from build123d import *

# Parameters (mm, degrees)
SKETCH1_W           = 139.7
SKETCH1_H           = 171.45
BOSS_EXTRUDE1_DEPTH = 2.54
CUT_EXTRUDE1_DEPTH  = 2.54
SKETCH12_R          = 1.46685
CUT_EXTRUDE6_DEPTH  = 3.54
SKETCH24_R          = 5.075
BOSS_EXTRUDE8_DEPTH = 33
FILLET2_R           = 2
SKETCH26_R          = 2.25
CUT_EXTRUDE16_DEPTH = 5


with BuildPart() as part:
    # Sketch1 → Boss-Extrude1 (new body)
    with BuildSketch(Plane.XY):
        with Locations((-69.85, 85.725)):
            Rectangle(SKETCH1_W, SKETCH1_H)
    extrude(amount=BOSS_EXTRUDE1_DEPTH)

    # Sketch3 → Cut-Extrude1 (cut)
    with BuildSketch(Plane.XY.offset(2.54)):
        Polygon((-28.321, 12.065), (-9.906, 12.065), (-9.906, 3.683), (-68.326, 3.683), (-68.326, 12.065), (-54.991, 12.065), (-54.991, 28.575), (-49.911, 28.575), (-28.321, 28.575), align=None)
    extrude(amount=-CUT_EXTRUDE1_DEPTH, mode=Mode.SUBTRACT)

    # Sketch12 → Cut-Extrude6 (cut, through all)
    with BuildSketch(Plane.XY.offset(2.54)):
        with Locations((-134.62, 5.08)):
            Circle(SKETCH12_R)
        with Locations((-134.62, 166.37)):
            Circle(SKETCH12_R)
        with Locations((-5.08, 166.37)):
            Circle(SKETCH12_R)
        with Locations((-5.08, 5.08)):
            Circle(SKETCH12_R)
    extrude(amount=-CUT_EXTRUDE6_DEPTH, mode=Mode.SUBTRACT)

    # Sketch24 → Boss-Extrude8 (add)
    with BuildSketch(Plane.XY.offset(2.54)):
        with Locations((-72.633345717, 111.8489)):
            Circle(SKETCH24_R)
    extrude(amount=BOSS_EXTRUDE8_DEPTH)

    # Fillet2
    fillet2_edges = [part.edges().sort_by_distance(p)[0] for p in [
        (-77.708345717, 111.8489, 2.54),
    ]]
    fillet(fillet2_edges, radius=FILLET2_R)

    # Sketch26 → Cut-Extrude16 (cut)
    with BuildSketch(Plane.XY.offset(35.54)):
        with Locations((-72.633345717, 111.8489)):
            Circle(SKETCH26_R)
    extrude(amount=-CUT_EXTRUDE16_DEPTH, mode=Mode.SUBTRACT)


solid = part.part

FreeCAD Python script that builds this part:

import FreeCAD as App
import Part
import Sketcher
from FreeCAD import Vector
Q = App.Units.Quantity


def edges_at(feature, points):
    """Names of the edges that pass closest to the given points."""
    edges = feature.Shape.Edges
    near = lambda p: min(range(len(edges)), key=lambda i: edges[i].distToShape(Part.Vertex(*p))[0])
    return sorted({f"Edge{near(p) + 1}" for p in points})

doc = App.newDocument("Part")
body = doc.addObject("PartDesign::Body", "Body")

sketch1 = body.newObject("Sketcher::SketchObject", "Sketch")
sketch1.AttachmentSupport = (doc.getObject("XY_Plane"), [""])
sketch1.MapMode = "FlatFace"
sketch1.addGeometry(Part.LineSegment(Vector(-140, 171, 0), Vector(-140, 0, 0)), False)
sketch1.addGeometry(Part.LineSegment(Vector(-140, 0, 0), Vector(0, 0, 0)), False)
sketch1.addGeometry(Part.LineSegment(Vector(0, 0, 0), Vector(0, 171, 0)), False)
sketch1.addGeometry(Part.LineSegment(Vector(0, 171, 0), Vector(-140, 171, 0)), False)
sketch1.addConstraint(Sketcher.Constraint("Coincident", 0, 2, 1, 1))
sketch1.addConstraint(Sketcher.Constraint("Coincident", 1, 2, 2, 1))
sketch1.addConstraint(Sketcher.Constraint("Coincident", 2, 2, 3, 1))
sketch1.addConstraint(Sketcher.Constraint("Coincident", 3, 2, 0, 1))
sketch1.addConstraint(Sketcher.Constraint("Vertical", 0))
sketch1.addConstraint(Sketcher.Constraint("Horizontal", 1))
sketch1.addConstraint(Sketcher.Constraint("Vertical", 2))
sketch1.addConstraint(Sketcher.Constraint("Horizontal", 3))
sketch1.addConstraint(Sketcher.Constraint("Coincident", 1, 2, -1, 1))
sketch1.addConstraint(Sketcher.Constraint("DistanceX", 1, 1, 1, 2, Q("5.5 in")))
sketch1.addConstraint(Sketcher.Constraint("DistanceY", 0, 2, 0, 1, Q("6.75 in")))
pad1 = body.newObject("PartDesign::Pad", "Pad")
pad1.Profile = sketch1
pad1.Length = Q("0.1 in")

sketch2 = body.newObject("Sketcher::SketchObject", "Sketch001")
sketch2.AttachmentSupport = (doc.getObject("XY_Plane"), [""])
sketch2.MapMode = "FlatFace"
sketch2.AttachmentOffset = App.Placement(Vector(0, 0, 0.1 * 25.4), App.Rotation())
sketch2.addGeometry(Part.LineSegment(Vector(-10, 12, 0), Vector(-28, 12, 0)), False)
sketch2.addGeometry(Part.LineSegment(Vector(-28, 12, 0), Vector(-28, 29, 0)), False)
sketch2.addGeometry(Part.LineSegment(Vector(-28, 29, 0), Vector(-55, 29, 0)), False)
sketch2.addGeometry(Part.LineSegment(Vector(-55, 29, 0), Vector(-55, 12, 0)), False)
sketch2.addGeometry(Part.LineSegment(Vector(-55, 12, 0), Vector(-68, 12, 0)), False)
sketch2.addGeometry(Part.LineSegment(Vector(-68, 12, 0), Vector(-68, 4, 0)), False)
sketch2.addGeometry(Part.LineSegment(Vector(-68, 4, 0), Vector(-10, 4, 0)), False)
sketch2.addGeometry(Part.LineSegment(Vector(-10, 4, 0), Vector(-10, 12, 0)), False)
sketch2.addConstraint(Sketcher.Constraint("Coincident", 0, 2, 1, 1))
sketch2.addConstraint(Sketcher.Constraint("Coincident", 1, 2, 2, 1))
sketch2.addConstraint(Sketcher.Constraint("Coincident", 2, 2, 3, 1))
sketch2.addConstraint(Sketcher.Constraint("Coincident", 3, 2, 4, 1))
sketch2.addConstraint(Sketcher.Constraint("Coincident", 4, 2, 5, 1))
sketch2.addConstraint(Sketcher.Constraint("Coincident", 5, 2, 6, 1))
sketch2.addConstraint(Sketcher.Constraint("Coincident", 6, 2, 7, 1))
sketch2.addConstraint(Sketcher.Constraint("Coincident", 7, 2, 0, 1))
sketch2.addConstraint(Sketcher.Constraint("Horizontal", 0))
sketch2.addConstraint(Sketcher.Constraint("Vertical", 1))
sketch2.addConstraint(Sketcher.Constraint("Horizontal", 2))
sketch2.addConstraint(Sketcher.Constraint("Vertical", 3))
sketch2.addConstraint(Sketcher.Constraint("Horizontal", 4))
sketch2.addConstraint(Sketcher.Constraint("Vertical", 5))
sketch2.addConstraint(Sketcher.Constraint("Horizontal", 6))
sketch2.addConstraint(Sketcher.Constraint("Vertical", 7))
sketch2.addConstraint(Sketcher.Constraint("Horizontal", 0, 2, 3, 2))
sketch2.addConstraint(Sketcher.Constraint("DistanceX", 6, 1, 6, 2, Q("2.3 in")))
sketch2.addConstraint(Sketcher.Constraint("DistanceX", 2, 2, 2, 1, Q("1.05 in")))
sketch2.addConstraint(Sketcher.Constraint("DistanceY", 1, 1, 1, 2, Q("0.65 in")))
sketch2.addConstraint(Sketcher.Constraint("DistanceY", 5, 2, 5, 1, Q("0.33 in")))
sketch2.addConstraint(Sketcher.Constraint("DistanceX", 0, 2, 0, 1, Q("0.725 in")))
sketch2.addConstraint(Sketcher.Constraint("DistanceX", 4, 2, -1, 1, Q("2.69 in")))
sketch2.addConstraint(Sketcher.Constraint("DistanceY", -1, 1, 0, 2, Q("0.475 in")))
pocket1 = body.newObject("PartDesign::Pocket", "Pocket")
pocket1.Profile = sketch2
pocket1.Length = Q("0.1 in")

sketch3 = body.newObject("Sketcher::SketchObject", "Sketch002")
sketch3.AttachmentSupport = (doc.getObject("XY_Plane"), [""])
sketch3.MapMode = "FlatFace"
sketch3.AttachmentOffset = App.Placement(Vector(0, 0, 0.1 * 25.4), App.Rotation())
sketch3.addGeometry(Part.Circle(Vector(-134.6, 5.1, 0), Vector(0, 0, 1), 1.5), False)
sketch3.addGeometry(Part.Circle(Vector(-134.6, 166.4, 0), Vector(0, 0, 1), 1.5), False)
sketch3.addGeometry(Part.Circle(Vector(-5.1, 166.4, 0), Vector(0, 0, 1), 1.5), False)
sketch3.addGeometry(Part.Circle(Vector(-5.1, 5.1, 0), Vector(0, 0, 1), 1.5), False)
sketch3.addConstraint(Sketcher.Constraint("Equal", 0, 1))
sketch3.addConstraint(Sketcher.Constraint("Equal", 1, 2))
sketch3.addConstraint(Sketcher.Constraint("Equal", 2, 3))
sketch3.addConstraint(Sketcher.Constraint("Horizontal", 1, 3, 2, 3))
sketch3.addConstraint(Sketcher.Constraint("Horizontal", 0, 3, 3, 3))
sketch3.addConstraint(Sketcher.Constraint("Vertical", 0, 3, 1, 3))
sketch3.addConstraint(Sketcher.Constraint("Vertical", 2, 3, 3, 3))
sketch3.addConstraint(Sketcher.Constraint("Diameter", 0, Q("0.1155 in")))
sketch3.addConstraint(Sketcher.Constraint("DistanceX", 0, 3, -1, 1, Q("5.3 in")))
sketch3.addConstraint(Sketcher.Constraint("DistanceY", -1, 1, 0, 3, Q("0.2 in")))
sketch3.addConstraint(Sketcher.Constraint("DistanceX", 2, 3, -1, 1, Q("0.2 in")))
sketch3.addConstraint(Sketcher.Constraint("DistanceY", -1, 1, 1, 3, Q("6.55 in")))
pocket2 = body.newObject("PartDesign::Pocket", "Pocket001")
pocket2.Profile = sketch3
pocket2.Type = "ThroughAll"

sketch4 = body.newObject("Sketcher::SketchObject", "Sketch003")
sketch4.AttachmentSupport = (doc.getObject("XY_Plane"), [""])
sketch4.MapMode = "FlatFace"
sketch4.AttachmentOffset = App.Placement(Vector(0, 0, 0.1 * 25.4), App.Rotation())
sketch4.addGeometry(Part.Circle(Vector(-73, 112, 0), Vector(0, 0, 1), 5), False)
sketch4.addConstraint(Sketcher.Constraint("Diameter", 0, Q("10.15 mm")))
sketch4.addConstraint(Sketcher.Constraint("DistanceY", -1, 1, 0, 3, Q("4.4035 in")))
sketch4.addConstraint(Sketcher.Constraint("DistanceX", 0, 3, -1, 1, Q("72.633346 mm")))
pad2 = body.newObject("PartDesign::Pad", "Pad001")
pad2.Profile = sketch4
pad2.Length = 33
doc.recompute()

fillet = body.newObject("PartDesign::Fillet", "Fillet")
fillet.Base = (pad2, edges_at(pad2, [(-77.708, 111.849, 2.54)]))
fillet.Radius = 2

sketch5 = body.newObject("Sketcher::SketchObject", "Sketch004")
sketch5.AttachmentSupport = (doc.getObject("XY_Plane"), [""])
sketch5.MapMode = "FlatFace"
sketch5.AttachmentOffset = App.Placement(Vector(0, 0, 35.54), App.Rotation())
sketch5.addGeometry(Part.Circle(Vector(-72.6, 111.8, 0), Vector(0, 0, 1), 2.2), False)
sketch5.addConstraint(Sketcher.Constraint("Diameter", 0, Q("4.5 mm")))
sketch5.addConstraint(Sketcher.Constraint("DistanceY", -1, 1, 0, 3, Q("4.4035 in")))
sketch5.addConstraint(Sketcher.Constraint("DistanceX", 0, 3, -1, 1, Q("72.633346 mm")))
pocket3 = body.newObject("PartDesign::Pocket", "Pocket002")
pocket3.Profile = sketch5
pocket3.Length = 5

doc.recompute()
